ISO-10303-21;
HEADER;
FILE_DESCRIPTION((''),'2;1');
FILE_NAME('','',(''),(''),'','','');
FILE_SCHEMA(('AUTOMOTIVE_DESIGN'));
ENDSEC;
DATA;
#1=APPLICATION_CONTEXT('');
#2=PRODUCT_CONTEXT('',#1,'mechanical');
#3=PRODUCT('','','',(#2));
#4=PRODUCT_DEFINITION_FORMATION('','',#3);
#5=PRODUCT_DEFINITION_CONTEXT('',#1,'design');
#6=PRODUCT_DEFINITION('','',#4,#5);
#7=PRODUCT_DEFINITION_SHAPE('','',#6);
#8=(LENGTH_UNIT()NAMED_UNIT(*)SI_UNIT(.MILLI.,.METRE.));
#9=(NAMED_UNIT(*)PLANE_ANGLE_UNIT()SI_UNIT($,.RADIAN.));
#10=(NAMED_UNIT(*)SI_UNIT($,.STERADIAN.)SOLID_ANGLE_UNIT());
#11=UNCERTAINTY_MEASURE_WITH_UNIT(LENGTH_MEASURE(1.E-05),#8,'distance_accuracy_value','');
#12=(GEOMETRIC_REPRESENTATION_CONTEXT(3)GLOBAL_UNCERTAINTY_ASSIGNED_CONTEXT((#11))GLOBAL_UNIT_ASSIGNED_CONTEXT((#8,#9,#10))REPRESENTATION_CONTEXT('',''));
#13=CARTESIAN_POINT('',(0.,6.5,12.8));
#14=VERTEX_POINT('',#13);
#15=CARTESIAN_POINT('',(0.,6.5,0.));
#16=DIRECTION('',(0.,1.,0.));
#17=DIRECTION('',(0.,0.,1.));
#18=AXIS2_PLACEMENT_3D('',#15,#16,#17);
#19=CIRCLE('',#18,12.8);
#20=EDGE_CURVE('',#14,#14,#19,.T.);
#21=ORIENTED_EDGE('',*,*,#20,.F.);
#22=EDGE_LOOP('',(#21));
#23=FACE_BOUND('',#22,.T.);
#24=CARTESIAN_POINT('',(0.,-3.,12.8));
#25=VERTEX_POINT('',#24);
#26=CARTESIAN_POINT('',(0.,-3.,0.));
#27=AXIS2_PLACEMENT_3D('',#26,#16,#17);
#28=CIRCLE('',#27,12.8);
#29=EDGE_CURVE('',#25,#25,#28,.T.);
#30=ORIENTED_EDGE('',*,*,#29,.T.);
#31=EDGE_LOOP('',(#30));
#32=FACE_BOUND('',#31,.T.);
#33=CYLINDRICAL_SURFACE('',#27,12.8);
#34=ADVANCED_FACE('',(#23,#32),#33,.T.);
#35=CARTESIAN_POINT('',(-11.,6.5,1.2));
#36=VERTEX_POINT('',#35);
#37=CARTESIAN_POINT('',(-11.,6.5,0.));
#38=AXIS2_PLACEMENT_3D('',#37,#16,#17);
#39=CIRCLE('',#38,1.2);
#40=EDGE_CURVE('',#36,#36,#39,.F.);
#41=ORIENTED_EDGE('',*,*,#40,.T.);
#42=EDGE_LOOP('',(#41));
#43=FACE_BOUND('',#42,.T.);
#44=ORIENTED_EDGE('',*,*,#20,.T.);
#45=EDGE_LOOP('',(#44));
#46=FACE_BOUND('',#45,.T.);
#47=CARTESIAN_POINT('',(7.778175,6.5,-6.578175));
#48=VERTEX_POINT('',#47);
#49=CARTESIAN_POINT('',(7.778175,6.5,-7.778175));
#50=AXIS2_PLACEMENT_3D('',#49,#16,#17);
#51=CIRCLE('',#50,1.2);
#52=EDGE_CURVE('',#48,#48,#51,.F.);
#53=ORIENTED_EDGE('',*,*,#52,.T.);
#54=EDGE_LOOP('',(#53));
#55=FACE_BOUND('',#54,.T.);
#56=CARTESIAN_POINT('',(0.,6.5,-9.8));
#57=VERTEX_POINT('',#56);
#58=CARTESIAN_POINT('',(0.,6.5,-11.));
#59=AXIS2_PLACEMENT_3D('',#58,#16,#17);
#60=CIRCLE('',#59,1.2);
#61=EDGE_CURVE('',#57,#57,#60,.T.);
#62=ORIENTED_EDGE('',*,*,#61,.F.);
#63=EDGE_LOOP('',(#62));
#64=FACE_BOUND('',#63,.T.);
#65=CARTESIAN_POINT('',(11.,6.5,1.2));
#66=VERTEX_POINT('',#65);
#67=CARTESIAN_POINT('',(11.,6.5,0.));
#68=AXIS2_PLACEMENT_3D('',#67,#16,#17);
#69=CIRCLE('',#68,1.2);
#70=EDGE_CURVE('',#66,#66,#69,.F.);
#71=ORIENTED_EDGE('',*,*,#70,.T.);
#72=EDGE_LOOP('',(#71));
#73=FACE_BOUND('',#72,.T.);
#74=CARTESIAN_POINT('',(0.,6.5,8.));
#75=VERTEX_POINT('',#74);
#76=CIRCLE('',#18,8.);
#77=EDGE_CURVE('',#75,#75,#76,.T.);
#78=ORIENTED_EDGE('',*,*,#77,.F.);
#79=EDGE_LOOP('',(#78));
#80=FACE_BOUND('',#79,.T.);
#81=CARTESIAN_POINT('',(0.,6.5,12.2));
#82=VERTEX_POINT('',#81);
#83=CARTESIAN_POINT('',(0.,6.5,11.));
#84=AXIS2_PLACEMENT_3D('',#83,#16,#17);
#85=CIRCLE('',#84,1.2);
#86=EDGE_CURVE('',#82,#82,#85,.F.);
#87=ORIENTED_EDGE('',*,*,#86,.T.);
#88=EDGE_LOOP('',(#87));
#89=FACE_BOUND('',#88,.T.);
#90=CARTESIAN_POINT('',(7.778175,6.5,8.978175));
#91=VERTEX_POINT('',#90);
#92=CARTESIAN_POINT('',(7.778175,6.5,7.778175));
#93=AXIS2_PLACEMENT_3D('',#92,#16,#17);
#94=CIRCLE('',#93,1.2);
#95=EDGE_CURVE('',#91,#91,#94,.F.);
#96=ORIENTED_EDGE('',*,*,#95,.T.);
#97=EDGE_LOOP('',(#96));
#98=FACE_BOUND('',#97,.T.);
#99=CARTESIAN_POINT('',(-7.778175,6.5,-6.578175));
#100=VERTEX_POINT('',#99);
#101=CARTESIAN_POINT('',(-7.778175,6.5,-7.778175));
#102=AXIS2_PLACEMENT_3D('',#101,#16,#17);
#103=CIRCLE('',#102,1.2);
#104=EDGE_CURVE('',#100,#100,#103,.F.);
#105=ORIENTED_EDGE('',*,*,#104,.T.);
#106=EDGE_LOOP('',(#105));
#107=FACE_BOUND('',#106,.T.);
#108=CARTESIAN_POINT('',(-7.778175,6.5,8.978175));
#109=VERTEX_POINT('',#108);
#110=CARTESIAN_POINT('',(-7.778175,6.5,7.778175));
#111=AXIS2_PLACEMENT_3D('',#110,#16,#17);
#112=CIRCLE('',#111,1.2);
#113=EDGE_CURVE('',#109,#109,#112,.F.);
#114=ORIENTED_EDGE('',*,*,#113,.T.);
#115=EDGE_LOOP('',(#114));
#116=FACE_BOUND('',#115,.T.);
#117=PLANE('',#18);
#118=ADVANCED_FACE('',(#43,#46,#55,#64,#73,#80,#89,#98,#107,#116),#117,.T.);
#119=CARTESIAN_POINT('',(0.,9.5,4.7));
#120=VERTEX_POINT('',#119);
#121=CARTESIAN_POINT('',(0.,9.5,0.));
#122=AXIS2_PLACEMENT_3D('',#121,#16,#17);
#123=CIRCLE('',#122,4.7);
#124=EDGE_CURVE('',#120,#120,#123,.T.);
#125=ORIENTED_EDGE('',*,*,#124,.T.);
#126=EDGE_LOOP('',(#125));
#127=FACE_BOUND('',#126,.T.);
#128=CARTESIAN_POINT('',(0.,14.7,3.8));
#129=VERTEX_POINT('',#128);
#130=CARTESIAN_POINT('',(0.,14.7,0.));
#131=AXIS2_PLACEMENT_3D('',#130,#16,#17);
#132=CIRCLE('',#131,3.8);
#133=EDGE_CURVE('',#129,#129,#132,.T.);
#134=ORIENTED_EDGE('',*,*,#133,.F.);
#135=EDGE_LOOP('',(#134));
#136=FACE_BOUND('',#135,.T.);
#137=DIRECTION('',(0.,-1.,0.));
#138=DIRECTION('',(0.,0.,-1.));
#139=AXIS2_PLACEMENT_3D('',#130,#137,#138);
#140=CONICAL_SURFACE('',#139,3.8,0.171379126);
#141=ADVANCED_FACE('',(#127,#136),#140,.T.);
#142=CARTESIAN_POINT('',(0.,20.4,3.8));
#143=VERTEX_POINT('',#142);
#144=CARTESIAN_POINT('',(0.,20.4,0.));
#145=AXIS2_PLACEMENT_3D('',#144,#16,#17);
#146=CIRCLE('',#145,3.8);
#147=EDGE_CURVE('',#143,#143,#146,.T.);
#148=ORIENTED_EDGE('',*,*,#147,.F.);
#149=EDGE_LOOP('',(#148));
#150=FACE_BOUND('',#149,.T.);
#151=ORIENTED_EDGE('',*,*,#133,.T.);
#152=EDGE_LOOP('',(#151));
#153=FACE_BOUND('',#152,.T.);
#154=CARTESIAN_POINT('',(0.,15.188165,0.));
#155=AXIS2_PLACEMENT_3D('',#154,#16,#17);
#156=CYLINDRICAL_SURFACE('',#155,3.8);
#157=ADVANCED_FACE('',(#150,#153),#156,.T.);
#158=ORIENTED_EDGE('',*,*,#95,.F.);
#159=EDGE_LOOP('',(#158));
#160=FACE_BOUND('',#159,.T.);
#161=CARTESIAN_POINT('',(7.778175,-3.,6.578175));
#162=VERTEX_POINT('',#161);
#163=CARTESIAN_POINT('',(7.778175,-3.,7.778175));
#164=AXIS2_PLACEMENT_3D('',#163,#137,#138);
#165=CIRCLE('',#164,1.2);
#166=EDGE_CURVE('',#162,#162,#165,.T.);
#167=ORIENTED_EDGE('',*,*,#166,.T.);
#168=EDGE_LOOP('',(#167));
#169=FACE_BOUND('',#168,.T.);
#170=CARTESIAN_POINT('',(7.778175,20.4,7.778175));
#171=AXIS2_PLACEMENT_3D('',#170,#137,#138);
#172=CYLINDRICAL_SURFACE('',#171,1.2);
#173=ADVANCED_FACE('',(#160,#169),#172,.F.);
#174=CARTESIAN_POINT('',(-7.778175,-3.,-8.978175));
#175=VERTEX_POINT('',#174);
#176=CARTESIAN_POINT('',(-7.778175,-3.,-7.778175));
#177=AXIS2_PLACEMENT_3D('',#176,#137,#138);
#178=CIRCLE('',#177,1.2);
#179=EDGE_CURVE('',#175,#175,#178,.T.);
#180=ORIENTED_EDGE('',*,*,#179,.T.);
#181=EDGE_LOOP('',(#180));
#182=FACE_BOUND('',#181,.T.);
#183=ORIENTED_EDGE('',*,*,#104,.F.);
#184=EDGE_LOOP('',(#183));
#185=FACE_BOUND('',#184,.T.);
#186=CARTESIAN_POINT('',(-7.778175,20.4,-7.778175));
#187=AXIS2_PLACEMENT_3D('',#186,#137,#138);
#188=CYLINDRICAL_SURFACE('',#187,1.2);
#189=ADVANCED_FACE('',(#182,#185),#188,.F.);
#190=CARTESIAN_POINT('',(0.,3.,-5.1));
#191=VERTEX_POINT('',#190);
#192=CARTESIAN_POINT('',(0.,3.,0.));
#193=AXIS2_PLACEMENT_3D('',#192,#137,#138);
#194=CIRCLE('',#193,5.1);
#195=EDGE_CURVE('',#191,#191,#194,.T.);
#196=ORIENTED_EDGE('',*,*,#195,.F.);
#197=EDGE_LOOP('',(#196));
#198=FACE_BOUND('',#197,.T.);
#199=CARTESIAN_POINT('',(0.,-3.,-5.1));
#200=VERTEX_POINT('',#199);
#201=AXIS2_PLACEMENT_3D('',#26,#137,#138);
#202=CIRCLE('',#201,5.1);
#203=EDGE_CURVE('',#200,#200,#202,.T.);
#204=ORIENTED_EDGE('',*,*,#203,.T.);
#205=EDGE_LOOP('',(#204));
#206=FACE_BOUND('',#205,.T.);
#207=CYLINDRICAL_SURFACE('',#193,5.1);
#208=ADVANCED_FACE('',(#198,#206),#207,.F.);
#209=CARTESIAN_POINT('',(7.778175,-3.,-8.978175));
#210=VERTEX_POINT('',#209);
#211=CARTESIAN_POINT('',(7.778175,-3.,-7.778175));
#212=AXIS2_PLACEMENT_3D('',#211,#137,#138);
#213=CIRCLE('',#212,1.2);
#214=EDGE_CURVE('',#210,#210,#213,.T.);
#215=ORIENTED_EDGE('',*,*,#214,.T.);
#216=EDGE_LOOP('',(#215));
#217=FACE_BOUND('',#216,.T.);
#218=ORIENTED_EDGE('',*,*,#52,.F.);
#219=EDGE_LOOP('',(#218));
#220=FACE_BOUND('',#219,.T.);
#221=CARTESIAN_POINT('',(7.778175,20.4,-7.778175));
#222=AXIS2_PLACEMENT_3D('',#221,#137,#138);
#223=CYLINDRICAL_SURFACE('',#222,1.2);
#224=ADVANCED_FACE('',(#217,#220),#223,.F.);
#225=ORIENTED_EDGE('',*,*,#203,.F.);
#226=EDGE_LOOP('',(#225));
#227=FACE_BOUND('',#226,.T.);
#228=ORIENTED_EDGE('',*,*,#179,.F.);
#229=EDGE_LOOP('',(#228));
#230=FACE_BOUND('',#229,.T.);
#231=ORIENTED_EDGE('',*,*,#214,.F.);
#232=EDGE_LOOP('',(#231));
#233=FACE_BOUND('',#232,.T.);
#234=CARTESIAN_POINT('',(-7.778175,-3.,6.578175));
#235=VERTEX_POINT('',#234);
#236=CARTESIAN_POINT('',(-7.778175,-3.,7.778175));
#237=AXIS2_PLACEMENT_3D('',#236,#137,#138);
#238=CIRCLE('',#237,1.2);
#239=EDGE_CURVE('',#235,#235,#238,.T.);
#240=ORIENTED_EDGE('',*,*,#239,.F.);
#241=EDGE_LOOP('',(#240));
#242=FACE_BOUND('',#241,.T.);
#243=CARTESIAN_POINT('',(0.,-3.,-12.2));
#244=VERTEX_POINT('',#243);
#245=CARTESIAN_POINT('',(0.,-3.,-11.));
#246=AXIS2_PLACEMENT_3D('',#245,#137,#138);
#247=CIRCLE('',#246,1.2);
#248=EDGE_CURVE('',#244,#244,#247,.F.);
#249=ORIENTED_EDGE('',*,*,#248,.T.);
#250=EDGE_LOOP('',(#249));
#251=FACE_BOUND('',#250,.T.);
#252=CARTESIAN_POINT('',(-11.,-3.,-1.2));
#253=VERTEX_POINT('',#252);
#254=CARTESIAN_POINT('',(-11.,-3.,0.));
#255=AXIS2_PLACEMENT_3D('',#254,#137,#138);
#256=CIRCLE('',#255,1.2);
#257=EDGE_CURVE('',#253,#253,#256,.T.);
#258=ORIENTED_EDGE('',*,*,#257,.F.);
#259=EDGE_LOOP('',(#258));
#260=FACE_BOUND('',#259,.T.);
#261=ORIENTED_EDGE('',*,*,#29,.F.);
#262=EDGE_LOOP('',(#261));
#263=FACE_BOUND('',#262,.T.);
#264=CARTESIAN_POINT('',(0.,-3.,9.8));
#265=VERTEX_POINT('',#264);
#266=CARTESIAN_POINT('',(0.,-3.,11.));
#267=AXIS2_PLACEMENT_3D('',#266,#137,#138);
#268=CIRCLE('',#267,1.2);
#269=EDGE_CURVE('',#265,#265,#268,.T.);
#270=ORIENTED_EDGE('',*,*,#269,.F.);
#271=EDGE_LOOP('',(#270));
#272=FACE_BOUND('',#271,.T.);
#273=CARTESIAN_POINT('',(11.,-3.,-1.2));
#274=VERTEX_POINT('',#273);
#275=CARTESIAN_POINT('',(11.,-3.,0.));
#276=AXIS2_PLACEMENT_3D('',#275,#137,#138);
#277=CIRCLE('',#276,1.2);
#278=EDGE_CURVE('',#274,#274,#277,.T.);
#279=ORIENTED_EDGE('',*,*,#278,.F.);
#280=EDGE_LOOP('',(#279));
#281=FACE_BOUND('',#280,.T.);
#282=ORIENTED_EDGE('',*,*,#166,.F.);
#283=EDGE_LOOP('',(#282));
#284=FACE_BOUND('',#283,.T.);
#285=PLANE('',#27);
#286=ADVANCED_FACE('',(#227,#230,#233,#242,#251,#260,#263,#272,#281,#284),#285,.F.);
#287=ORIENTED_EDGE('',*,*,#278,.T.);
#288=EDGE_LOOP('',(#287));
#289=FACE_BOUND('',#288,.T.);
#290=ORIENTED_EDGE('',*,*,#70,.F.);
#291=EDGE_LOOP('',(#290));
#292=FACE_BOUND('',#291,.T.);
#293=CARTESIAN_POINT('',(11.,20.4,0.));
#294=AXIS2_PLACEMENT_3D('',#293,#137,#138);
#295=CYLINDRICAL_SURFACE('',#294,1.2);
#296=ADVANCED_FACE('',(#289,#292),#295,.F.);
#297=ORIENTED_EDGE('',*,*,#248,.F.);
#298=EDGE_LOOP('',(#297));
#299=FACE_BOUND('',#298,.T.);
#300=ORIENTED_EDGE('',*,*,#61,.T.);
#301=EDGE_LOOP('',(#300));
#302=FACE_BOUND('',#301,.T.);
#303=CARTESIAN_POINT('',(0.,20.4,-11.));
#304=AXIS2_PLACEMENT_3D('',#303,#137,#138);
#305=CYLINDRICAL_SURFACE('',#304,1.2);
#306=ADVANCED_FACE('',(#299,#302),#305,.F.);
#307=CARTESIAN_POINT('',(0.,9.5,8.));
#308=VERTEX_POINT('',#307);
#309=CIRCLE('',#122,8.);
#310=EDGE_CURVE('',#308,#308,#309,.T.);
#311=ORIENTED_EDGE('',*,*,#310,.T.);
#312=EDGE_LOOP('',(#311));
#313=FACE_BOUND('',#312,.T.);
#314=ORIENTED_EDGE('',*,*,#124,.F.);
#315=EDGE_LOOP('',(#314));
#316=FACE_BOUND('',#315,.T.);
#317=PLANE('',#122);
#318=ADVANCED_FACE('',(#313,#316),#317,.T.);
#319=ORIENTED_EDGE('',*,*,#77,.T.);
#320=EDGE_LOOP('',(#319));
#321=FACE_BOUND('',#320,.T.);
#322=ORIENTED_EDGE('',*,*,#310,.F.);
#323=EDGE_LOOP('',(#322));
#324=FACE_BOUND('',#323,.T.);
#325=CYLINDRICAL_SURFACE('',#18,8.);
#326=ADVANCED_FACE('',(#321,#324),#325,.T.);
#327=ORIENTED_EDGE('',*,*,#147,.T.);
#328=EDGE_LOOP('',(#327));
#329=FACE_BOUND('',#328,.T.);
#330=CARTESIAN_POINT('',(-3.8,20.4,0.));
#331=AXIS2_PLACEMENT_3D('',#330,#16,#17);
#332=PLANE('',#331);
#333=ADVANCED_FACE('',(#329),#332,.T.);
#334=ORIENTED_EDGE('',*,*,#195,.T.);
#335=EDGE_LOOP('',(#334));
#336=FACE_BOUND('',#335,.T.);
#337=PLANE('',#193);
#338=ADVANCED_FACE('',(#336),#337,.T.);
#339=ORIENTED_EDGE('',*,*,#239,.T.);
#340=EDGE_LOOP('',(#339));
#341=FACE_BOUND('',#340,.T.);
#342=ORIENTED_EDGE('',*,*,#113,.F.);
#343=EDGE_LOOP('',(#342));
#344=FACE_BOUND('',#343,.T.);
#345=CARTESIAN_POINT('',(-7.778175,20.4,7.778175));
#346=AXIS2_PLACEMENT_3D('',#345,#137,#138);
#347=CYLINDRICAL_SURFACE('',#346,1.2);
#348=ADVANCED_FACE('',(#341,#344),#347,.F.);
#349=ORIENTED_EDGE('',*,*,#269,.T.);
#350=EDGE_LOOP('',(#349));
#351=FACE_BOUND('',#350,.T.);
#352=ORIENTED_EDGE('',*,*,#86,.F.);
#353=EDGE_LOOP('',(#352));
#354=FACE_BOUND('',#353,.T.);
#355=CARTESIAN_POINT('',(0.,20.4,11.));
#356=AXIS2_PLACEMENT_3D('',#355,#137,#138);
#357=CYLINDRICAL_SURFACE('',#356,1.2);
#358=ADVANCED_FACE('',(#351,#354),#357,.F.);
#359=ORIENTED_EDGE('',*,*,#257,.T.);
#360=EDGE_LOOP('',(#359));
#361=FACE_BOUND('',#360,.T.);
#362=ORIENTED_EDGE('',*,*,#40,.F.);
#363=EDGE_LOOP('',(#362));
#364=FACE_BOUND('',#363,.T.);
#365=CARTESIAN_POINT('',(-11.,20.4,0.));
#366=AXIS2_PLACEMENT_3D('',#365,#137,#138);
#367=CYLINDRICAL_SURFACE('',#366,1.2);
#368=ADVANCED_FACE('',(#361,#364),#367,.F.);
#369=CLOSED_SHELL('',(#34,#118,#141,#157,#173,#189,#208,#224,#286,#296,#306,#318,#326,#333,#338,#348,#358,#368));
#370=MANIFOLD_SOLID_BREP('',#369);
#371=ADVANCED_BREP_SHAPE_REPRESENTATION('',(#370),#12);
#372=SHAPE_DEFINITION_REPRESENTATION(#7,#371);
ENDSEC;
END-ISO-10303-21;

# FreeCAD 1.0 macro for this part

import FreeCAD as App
import Part
import Sketcher

doc = App.newDocument("Part")
params = doc.addObject("Spreadsheet::Sheet", "Params")
for row, (alias, value) in enumerate([
    ("sketch1_diameter", "25.6 mm"),
    ("pad1_length", "9.5 mm"),
    ("pad1_length2", "3 mm"),
    ("sketch2_width", "4.7 mm"),
    ("sketch2_width2", "3.8 mm"),
    ("sketch2_height", "10.9 mm"),
    ("sketch2_height2", "5.7 mm"),
    ("revolution_angle", "360 deg"),
    ("sketch3_diameter", "2.4 mm"),
    ("sketch4_diameter", "10.2 mm"),
    ("pocket2_length", "6 mm"),
    ("sketch5_diameter", "16 mm"),
    ("sketch5_diameter2", "25.6 mm"),
    ("pocket3_length", "3 mm"),
], start=1):
    params.set(f"A{row}", alias)
    params.set(f"B{row}", "=" + value)
    params.setAlias(f"B{row}", alias)

body = doc.addObject("PartDesign::Body", "Body")

# Sketch on XZ plane
sketch1 = body.newObject("Sketcher::SketchObject", "Sketch")
sketch1.AttachmentSupport = (doc.getObject("XZ_Plane"), [""])
sketch1.MapMode = "FlatFace"
sketch1.addGeometry(Part.Circle(App.Vector(0, 0, 0), App.Vector(0, 0, 1), 12.8), False)
sketch1.addConstraint([
    Sketcher.Constraint("Coincident", 0, 3, -1, 1),
    Sketcher.Constraint("Diameter", 0, 25.6),
])
sketch1.setExpression("Constraints[1]", "Params.sketch1_diameter")
pad1 = body.newObject("PartDesign::Pad", "Pad")
pad1.Profile = sketch1
pad1.Type = "TwoLengths"
pad1.setExpression("Length", "Params.pad1_length")
pad1.setExpression("Length2", "Params.pad1_length2")
pad1.Reversed = True

# Sketch on XY plane
sketch2 = body.newObject("Sketcher::SketchObject", "Sketch001")
sketch2.AttachmentSupport = (doc.getObject("XY_Plane"), [""])
sketch2.MapMode = "FlatFace"
sketch2.addGeometry([
    Part.LineSegment(App.Vector(-4.7, 9.5, 0), App.Vector(0, 9.5, 0)),  # 0
    Part.LineSegment(App.Vector(0, 9.5, 0), App.Vector(0, 20.4, 0)),  # 1
    Part.LineSegment(App.Vector(0, 20.4, 0), App.Vector(-3.8, 20.4, 0)),  # 2
    Part.LineSegment(App.Vector(-3.8, 20.4, 0), App.Vector(-3.8, 14.7, 0)),  # 3
    Part.LineSegment(App.Vector(-3.8, 14.7, 0), App.Vector(-4.7, 9.5, 0)),  # 4
], False)
sketch2.addConstraint([
    Sketcher.Constraint("Coincident", 0, 2, 1, 1),
    Sketcher.Constraint("Coincident", 1, 2, 2, 1),
    Sketcher.Constraint("Coincident", 2, 2, 3, 1),
    Sketcher.Constraint("Coincident", 3, 2, 4, 1),
    Sketcher.Constraint("Coincident", 4, 2, 0, 1),
    Sketcher.Constraint("Horizontal", 0),
    Sketcher.Constraint("Vertical", 1),
    Sketcher.Constraint("Horizontal", 2),
    Sketcher.Constraint("Vertical", 3),
    Sketcher.Constraint("PointOnObject", 0, 2, -2),
    Sketcher.Constraint("DistanceX", 0, 1, 0, 2, 4.7),
    Sketcher.Constraint("DistanceX", 2, 2, 2, 1, 3.8),
    Sketcher.Constraint("DistanceY", 1, 1, 1, 2, 10.9),
    Sketcher.Constraint("DistanceY", 3, 2, 3, 1, 5.7),
    Sketcher.Constraint("DistanceY", -1, 1, 0, 2, 9.5),
])
sketch2.setExpression("Constraints[10]", "Params.sketch2_width")
sketch2.setExpression("Constraints[11]", "Params.sketch2_width2")
sketch2.setExpression("Constraints[12]", "Params.sketch2_height")
sketch2.setExpression("Constraints[13]", "Params.sketch2_height2")
revolution = body.newObject("PartDesign::Revolution", "Revolution")
revolution.Profile = sketch2
revolution.ReferenceAxis = (sketch2, ["V_Axis"])
revolution.setExpression("Angle", "Params.revolution_angle")

# Sketch on XZ plane
sketch3 = body.newObject("Sketcher::SketchObject", "Sketch002")
sketch3.AttachmentSupport = (doc.getObject("XZ_Plane"), [""])
sketch3.MapMode = "FlatFace"
sketch3.AttachmentOffset = App.Placement(App.Vector(0, 0, 3), App.Rotation())
sketch3.addGeometry([
    Part.Circle(App.Vector(0, 11, 0), App.Vector(0, 0, 1), 1.2),  # 0
    Part.Circle(App.Vector(7.778175, 7.778175, 0), App.Vector(0, 0, 1), 1.2),  # 1
    Part.Circle(App.Vector(11, 0, 0), App.Vector(0, 0, 1), 1.2),  # 2
    Part.Circle(App.Vector(0, -11, 0), App.Vector(0, 0, 1), 1.2),  # 3
    Part.Circle(App.Vector(-7.778175, -7.778175, 0), App.Vector(0, 0, 1), 1.2),  # 4
    Part.Circle(App.Vector(-7.778175, 7.778175, 0), App.Vector(0, 0, 1), 1.2),  # 5
    Part.Circle(App.Vector(7.778175, -7.778175, 0), App.Vector(0, 0, 1), 1.2),  # 6
    Part.Circle(App.Vector(-11, 0, 0), App.Vector(0, 0, 1), 1.2),  # 7
], False)
sketch3.addConstraint([
    Sketcher.Constraint("Equal", 0, 1),
    Sketcher.Constraint("Equal", 1, 2),
    Sketcher.Constraint("Equal", 2, 3),
    Sketcher.Constraint("Equal", 3, 4),
    Sketcher.Constraint("Equal", 4, 5),
    Sketcher.Constraint("Equal", 5, 6),
    Sketcher.Constraint("Equal", 6, 7),
    Sketcher.Constraint("Symmetric", 0, 3, 3, 3, -1, 1),
    Sketcher.Constraint("Symmetric", 1, 3, 4, 3, -1, 1),
    Sketcher.Constraint("Symmetric", 5, 3, 6, 3, -1, 1),
    Sketcher.Constraint("Symmetric", 2, 3, 7, 3, -1, 1),
    Sketcher.Constraint("Symmetric", 1, 3, 5, 3, -2),
    Sketcher.Constraint("PointOnObject", 0, 3, -2),
    Sketcher.Constraint("PointOnObject", 2, 3, -1),
    Sketcher.Constraint("Diameter", 0, 2.4),
    Sketcher.Constraint("DistanceY", -1, 1, 0, 3, 11.0),
    Sketcher.Constraint("DistanceX", -1, 1, 2, 3, 11.0),
    Sketcher.Constraint("DistanceX", 4, 3, 1, 3, 15.556349),
    Sketcher.Constraint("DistanceY", 4, 3, 1, 3, 15.556349),
])
sketch3.setExpression("Constraints[14]", "Params.sketch3_diameter")
pocket1 = body.newObject("PartDesign::Pocket", "Pocket")
pocket1.Profile = sketch3
pocket1.Type = "ThroughAll"

# Sketch on XZ plane
sketch4 = body.newObject("Sketcher::SketchObject", "Sketch003")
sketch4.AttachmentSupport = (doc.getObject("XZ_Plane"), [""])
sketch4.MapMode = "FlatFace"
sketch4.AttachmentOffset = App.Placement(App.Vector(0, 0, 3), App.Rotation())
sketch4.addGeometry(Part.Circle(App.Vector(0, 0, 0), App.Vector(0, 0, 1), 5.1), False)
sketch4.addConstraint([
    Sketcher.Constraint("Coincident", 0, 3, -1, 1),
    Sketcher.Constraint("Diameter", 0, 10.2),
])
sketch4.setExpression("Constraints[1]", "Params.sketch4_diameter")
pocket2 = body.newObject("PartDesign::Pocket", "Pocket001")
pocket2.Profile = sketch4
pocket2.setExpression("Length", "Params.pocket2_length")

# Sketch on XZ plane
sketch5 = body.newObject("Sketcher::SketchObject", "Sketch004")
sketch5.AttachmentSupport = (doc.getObject("XZ_Plane"), [""])
sketch5.MapMode = "FlatFace"
sketch5.AttachmentOffset = App.Placement(App.Vector(0, 0, -9.5), App.Rotation())
sketch5.addGeometry([
    Part.Circle(App.Vector(0, 0, 0), App.Vector(0, 0, 1), 12.8),
    Part.Circle(App.Vector(0, 0, 0), App.Vector(0, 0, 1), 8),
], False)
sketch5.addConstraint([
    Sketcher.Constraint("Coincident", 0, 3, -1, 1),
    Sketcher.Constraint("Coincident", 1, 3, -1, 1),
    Sketcher.Constraint("Diameter", 1, 16.0),
    Sketcher.Constraint("Diameter", 0, 25.6),
])
sketch5.setExpression("Constraints[2]", "Params.sketch5_diameter")
sketch5.setExpression("Constraints[3]", "Params.sketch5_diameter2")
pocket3 = body.newObject("PartDesign::Pocket", "Pocket002")
pocket3.Profile = sketch5
pocket3.setExpression("Length", "Params.pocket3_length")
pocket3.Reversed = True

doc.recompute()
